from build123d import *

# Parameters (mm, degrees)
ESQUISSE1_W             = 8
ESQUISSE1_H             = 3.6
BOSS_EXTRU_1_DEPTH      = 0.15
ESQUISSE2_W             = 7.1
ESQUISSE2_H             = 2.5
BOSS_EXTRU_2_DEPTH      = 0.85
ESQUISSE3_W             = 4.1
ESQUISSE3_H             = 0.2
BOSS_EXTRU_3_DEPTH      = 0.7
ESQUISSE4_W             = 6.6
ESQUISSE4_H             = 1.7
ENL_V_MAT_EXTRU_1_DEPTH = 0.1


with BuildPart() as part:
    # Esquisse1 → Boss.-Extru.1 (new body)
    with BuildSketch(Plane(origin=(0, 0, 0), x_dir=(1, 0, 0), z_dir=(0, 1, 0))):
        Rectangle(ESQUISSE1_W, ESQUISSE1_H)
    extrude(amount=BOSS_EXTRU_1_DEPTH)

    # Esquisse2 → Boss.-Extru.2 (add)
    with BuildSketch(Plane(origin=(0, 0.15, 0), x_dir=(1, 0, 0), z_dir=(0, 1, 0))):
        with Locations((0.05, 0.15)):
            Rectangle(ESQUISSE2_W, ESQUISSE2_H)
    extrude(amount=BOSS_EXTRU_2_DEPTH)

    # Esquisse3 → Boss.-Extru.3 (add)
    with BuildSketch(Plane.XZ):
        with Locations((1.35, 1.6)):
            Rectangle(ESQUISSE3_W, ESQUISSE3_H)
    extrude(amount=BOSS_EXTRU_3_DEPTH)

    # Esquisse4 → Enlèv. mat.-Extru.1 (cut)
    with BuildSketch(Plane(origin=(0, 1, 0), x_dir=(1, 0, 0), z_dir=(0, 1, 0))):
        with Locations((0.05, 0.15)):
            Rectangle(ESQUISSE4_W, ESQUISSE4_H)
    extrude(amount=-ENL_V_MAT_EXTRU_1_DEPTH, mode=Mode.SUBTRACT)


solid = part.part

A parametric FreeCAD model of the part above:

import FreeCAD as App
import Part
import Sketcher

V = App.Vector
Q = App.Units.Quantity


def add_polygon(sketch, points):
    """Adds a closed chain of lines whose ends are joined by coincident constraints."""
    first, n = sketch.GeometryCount, len(points)
    for a, b in zip(points, points[1:] + points[:1]):
        sketch.addGeometry(Part.LineSegment(App.Vector(*a, 0), App.Vector(*b, 0)), False)
    for i in range(n):
        sketch.addConstraint(Sketcher.Constraint("Coincident", first + i, 2, first + (i + 1) % n, 1))

doc = App.newDocument("Part")
body = doc.addObject("PartDesign::Body", "Body")

sketch1 = doc.addObject("Sketcher::SketchObject", "Sketch")
body.addObject(sketch1)
sketch1.AttachmentSupport = (doc.XZ_Plane, [""])
sketch1.MapMode = "FlatFace"
add_polygon(sketch1, [(-4, -1.8), (-4, 1.8), (4, 1.8), (4, -1.8)])
sketch1.addConstraint(Sketcher.Constraint("Vertical", 0))
sketch1.addConstraint(Sketcher.Constraint("Horizontal", 1))
sketch1.addConstraint(Sketcher.Constraint("Vertical", 2))
sketch1.addConstraint(Sketcher.Constraint("Horizontal", 3))
sketch1.addConstraint(Sketcher.Constraint("Symmetric", 0, 2, 2, 2, -1, 1))
sketch1.addConstraint(Sketcher.Constraint("DistanceX", 1, 1, 1, 2, Q("8 mm")))
sketch1.addConstraint(Sketcher.Constraint("DistanceY", 0, 1, 0, 2, Q("3.6 mm")))
pad1 = doc.addObject("PartDesign::Pad", "Pad")
body.addObject(pad1)
pad1.Profile = sketch1
pad1.Length = 0.15
pad1.Reversed = True

sketch2 = doc.addObject("Sketcher::SketchObject", "Sketch001")
body.addObject(sketch2)
sketch2.AttachmentSupport = (doc.XZ_Plane, [""])
sketch2.MapMode = "FlatFace"
sketch2.AttachmentOffset = App.Placement(V(0, 0, -0.15), App.Rotation())
add_polygon(sketch2, [(-3.5, -1.4), (-3.5, 1.1), (3.6, 1.1), (3.6, -1.4)])
sketch2.addConstraint(Sketcher.Constraint("Vertical", 0))
sketch2.addConstraint(Sketcher.Constraint("Horizontal", 1))
sketch2.addConstraint(Sketcher.Constraint("Vertical", 2))
sketch2.addConstraint(Sketcher.Constraint("Horizontal", 3))
sketch2.addConstraint(Sketcher.Constraint("DistanceX", 1, 1, 1, 2, Q("7.1 mm")))
sketch2.addConstraint(Sketcher.Constraint("DistanceY", 0, 1, 0, 2, Q("2.5 mm")))
sketch2.addConstraint(Sketcher.Constraint("DistanceX", 0, 2, -1, 1, Q("3.5 mm")))
sketch2.addConstraint(Sketcher.Constraint("DistanceY", -1, 1, 0, 2, Q("1.1 mm")))
pad2 = doc.addObject("PartDesign::Pad", "Pad001")
body.addObject(pad2)
pad2.Profile = sketch2
pad2.Length = 0.85
pad2.Reversed = True

sketch3 = doc.addObject("Sketcher::SketchObject", "Sketch002")
body.addObject(sketch3)
sketch3.AttachmentSupport = (doc.XZ_Plane, [""])
sketch3.MapMode = "FlatFace"
add_polygon(sketch3, [(-0.7, 1.7), (-0.7, 1.5), (3.4, 1.5), (3.4, 1.7)])
sketch3.addConstraint(Sketcher.Constraint("Vertical", 0))
sketch3.addConstraint(Sketcher.Constraint("Horizontal", 1))
sketch3.addConstraint(Sketcher.Constraint("Vertical", 2))
sketch3.addConstraint(Sketcher.Constraint("Horizontal", 3))
sketch3.addConstraint(Sketcher.Constraint("DistanceX", 1, 1, 1, 2, Q("4.1 mm")))
sketch3.addConstraint(Sketcher.Constraint("DistanceY", 0, 2, 0, 1, Q("0.2 mm")))
sketch3.addConstraint(Sketcher.Constraint("DistanceX", 0, 2, -1, 1, Q("0.7 mm")))
sketch3.addConstraint(Sketcher.Constraint("DistanceY", -1, 1, 0, 2, Q("1.5 mm")))
pad3 = doc.addObject("PartDesign::Pad", "Pad002")
body.addObject(pad3)
pad3.Profile = sketch3
pad3.Length = 0.7

sketch4 = doc.addObject("Sketcher::SketchObject", "Sketch003")
body.addObject(sketch4)
sketch4.AttachmentSupport = (doc.XZ_Plane, [""])
sketch4.MapMode = "FlatFace"
sketch4.AttachmentOffset = App.Placement(V(0, 0, -1), App.Rotation())
add_polygon(sketch4, [(-3.2, -1), (-3.2, 0.7), (3.4, 0.7), (3.4, -1)])
sketch4.addConstraint(Sketcher.Constraint("Vertical", 0))
sketch4.addConstraint(Sketcher.Constraint("Horizontal", 1))
sketch4.addConstraint(Sketcher.Constraint("Vertical", 2))
sketch4.addConstraint(Sketcher.Constraint("Horizontal", 3))
sketch4.addConstraint(Sketcher.Constraint("DistanceX", 1, 1, 1, 2, Q("6.6 mm")))
sketch4.addConstraint(Sketcher.Constraint("DistanceY", 0, 1, 0, 2, Q("1.7 mm")))
sketch4.addConstraint(Sketcher.Constraint("DistanceY", 2, 2, -1, 1, Q("1 mm")))
sketch4.addConstraint(Sketcher.Constraint("DistanceX", 0, 2, -1, 1, Q("3.25 mm")))
pocket1 = doc.addObject("PartDesign::Pocket", "Pocket")
body.addObject(pocket1)
pocket1.Profile = sketch4
pocket1.Length = 0.1
pocket1.Reversed = True

doc.recompute()
